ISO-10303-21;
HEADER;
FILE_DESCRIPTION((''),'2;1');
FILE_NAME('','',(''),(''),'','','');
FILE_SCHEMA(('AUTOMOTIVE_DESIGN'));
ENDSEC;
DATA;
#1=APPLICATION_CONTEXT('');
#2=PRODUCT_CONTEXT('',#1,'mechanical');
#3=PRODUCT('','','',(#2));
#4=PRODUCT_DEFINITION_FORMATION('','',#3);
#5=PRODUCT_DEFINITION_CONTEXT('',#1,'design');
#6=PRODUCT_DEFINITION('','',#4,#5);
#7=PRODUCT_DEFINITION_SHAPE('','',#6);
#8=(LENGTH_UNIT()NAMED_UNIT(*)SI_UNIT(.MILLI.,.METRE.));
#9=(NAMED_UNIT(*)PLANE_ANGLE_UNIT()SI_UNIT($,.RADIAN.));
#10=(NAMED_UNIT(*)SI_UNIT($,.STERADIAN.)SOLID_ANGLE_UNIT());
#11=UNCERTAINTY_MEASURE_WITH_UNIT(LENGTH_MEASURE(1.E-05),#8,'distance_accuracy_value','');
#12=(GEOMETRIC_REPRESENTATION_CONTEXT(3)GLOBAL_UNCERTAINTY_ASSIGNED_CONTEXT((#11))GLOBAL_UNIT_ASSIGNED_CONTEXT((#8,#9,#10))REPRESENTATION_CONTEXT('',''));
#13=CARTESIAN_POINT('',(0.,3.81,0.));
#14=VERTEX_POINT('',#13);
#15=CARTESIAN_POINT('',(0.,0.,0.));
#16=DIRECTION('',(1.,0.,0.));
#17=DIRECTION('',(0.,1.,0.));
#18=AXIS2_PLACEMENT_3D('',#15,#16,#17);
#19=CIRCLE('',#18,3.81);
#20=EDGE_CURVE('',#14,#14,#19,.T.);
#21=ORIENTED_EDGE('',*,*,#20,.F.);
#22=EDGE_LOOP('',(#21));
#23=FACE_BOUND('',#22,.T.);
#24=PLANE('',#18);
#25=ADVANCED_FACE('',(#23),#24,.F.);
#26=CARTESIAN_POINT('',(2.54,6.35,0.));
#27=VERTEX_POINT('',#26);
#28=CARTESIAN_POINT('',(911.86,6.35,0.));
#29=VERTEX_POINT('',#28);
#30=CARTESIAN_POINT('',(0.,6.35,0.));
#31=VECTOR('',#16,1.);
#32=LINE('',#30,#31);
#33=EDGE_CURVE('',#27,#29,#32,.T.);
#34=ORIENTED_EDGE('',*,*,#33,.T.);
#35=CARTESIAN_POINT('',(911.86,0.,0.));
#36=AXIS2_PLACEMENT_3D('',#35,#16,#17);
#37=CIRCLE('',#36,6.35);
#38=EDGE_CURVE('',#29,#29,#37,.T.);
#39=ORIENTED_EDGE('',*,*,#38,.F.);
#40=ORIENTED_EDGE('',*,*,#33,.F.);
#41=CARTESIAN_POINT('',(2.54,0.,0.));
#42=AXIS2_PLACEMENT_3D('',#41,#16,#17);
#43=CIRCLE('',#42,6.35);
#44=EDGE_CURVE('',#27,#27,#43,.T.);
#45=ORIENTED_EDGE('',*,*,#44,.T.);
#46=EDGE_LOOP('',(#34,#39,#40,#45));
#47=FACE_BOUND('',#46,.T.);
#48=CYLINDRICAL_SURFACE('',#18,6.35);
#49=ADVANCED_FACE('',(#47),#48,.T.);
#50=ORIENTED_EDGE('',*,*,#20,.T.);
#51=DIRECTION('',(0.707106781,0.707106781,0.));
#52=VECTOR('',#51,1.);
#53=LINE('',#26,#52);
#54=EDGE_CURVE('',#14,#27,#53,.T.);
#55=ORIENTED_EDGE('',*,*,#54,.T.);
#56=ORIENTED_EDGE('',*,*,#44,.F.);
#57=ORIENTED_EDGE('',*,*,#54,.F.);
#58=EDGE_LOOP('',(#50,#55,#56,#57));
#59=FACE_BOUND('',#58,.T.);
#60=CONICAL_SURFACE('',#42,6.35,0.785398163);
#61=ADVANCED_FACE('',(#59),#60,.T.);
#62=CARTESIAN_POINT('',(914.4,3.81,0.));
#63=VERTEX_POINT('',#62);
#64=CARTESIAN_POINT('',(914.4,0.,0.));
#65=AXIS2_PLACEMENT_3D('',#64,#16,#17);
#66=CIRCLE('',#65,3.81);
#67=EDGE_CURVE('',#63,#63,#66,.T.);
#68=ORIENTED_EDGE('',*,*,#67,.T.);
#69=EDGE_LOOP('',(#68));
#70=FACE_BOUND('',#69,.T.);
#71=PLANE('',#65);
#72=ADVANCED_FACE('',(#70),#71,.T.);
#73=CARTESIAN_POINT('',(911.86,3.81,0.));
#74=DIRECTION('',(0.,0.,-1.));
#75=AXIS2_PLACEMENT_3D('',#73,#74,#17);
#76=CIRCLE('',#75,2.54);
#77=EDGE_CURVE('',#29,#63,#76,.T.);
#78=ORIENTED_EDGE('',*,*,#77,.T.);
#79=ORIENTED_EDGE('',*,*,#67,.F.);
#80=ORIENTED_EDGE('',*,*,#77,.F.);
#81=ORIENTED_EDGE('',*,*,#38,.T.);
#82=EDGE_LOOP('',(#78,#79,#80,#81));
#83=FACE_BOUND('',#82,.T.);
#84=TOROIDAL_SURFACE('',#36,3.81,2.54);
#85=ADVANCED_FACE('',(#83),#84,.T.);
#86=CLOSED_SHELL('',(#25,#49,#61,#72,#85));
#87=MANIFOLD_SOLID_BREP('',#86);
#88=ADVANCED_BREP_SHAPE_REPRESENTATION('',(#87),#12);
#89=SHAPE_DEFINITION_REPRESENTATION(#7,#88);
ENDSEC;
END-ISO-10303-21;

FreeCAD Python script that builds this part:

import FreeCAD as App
import Part
import Sketcher

V = App.Vector
Q = App.Units.Quantity


def edges_at(feature, points):
    """Names of the edges that pass closest to the given points."""
    edges = feature.Shape.Edges
    near = lambda p: min(range(len(edges)), key=lambda i: edges[i].distToShape(Part.Vertex(*p))[0])
    return sorted({f"Edge{near(p) + 1}" for p in points})


def add_polygon(sketch, points):
    """Adds a closed chain of lines whose ends are joined by coincident constraints."""
    first, n = sketch.GeometryCount, len(points)
    for a, b in zip(points, points[1:] + points[:1]):
        sketch.addGeometry(Part.LineSegment(App.Vector(*a, 0), App.Vector(*b, 0)), False)
    for i in range(n):
        sketch.addConstraint(Sketcher.Constraint("Coincident", first + i, 2, first + (i + 1) % n, 1))

doc = App.newDocument("Part")
body = doc.addObject("PartDesign::Body", "Body")

# Sketch on XY plane
sketch1 = body.newObject("Sketcher::SketchObject", "Sketch")
sketch1.AttachmentSupport = (doc.getObject("XY_Plane"), [""])
sketch1.MapMode = "FlatFace"
add_polygon(sketch1, [(0, 6), (0, 0), (914, 0), (914, 6)])  # lines 0-3
sketch1.addConstraint(Sketcher.Constraint("Vertical", 0))
sketch1.addConstraint(Sketcher.Constraint("Horizontal", 1))
sketch1.addConstraint(Sketcher.Constraint("Vertical", 2))
sketch1.addConstraint(Sketcher.Constraint("Horizontal", 3))
sketch1.addConstraint(Sketcher.Constraint("Coincident", 0, 2, -1, 1))
sketch1.addConstraint(Sketcher.Constraint("DistanceX", 1, 1, 1, 2, Q("36 in")))
sketch1.addConstraint(Sketcher.Constraint("DistanceY", 0, 2, 0, 1, Q("0.25 in")))
revolution = body.newObject("PartDesign::Revolution", "Revolution")
revolution.Profile = sketch1
revolution.ReferenceAxis = (sketch1, ["H_Axis"])
revolution.Angle = 360
doc.recompute()

chamfer = body.newObject("PartDesign::Chamfer", "Chamfer")
chamfer.Base = (revolution, edges_at(revolution, [(0, -6.35, 0)]))
chamfer.Size = Q("0.1 in")
doc.recompute()

fillet = body.newObject("PartDesign::Fillet", "Fillet")
fillet.Base = (chamfer, edges_at(chamfer, [(914.4, -6.35, 0)]))
fillet.Radius = Q("0.1 in")

doc.recompute()
